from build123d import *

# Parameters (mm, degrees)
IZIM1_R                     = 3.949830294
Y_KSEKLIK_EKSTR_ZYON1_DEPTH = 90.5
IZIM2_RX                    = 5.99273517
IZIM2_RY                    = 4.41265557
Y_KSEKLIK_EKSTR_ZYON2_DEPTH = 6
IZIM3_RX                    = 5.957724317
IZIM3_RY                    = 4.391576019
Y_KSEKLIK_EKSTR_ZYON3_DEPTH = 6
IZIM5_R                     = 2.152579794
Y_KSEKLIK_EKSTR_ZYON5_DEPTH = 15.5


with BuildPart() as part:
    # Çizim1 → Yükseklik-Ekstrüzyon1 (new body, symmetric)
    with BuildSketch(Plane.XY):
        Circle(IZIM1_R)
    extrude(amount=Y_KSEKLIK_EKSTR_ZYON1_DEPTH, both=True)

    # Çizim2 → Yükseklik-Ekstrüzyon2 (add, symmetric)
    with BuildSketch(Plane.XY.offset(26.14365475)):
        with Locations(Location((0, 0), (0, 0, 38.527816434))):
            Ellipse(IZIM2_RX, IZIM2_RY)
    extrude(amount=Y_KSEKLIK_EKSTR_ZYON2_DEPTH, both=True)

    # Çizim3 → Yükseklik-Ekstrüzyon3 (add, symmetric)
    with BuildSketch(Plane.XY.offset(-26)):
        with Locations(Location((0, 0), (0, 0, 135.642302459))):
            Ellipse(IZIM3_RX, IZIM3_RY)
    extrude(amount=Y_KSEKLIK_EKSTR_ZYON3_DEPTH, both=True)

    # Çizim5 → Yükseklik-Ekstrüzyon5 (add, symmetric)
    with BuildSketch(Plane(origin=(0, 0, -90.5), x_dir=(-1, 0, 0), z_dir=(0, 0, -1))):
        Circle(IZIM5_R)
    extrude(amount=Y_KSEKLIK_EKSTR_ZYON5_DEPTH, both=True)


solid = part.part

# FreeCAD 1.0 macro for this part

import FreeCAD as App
import Part
import Sketcher

V = App.Vector
Q = App.Units.Quantity

doc = App.newDocument("Part")
params = doc.addObject("Spreadsheet::Sheet", "Params")
for row, (alias, value) in enumerate([
    ("pad1_length", "181 mm"),
    ("pad2_length", "12 mm"),
    ("pad3_length", "12 mm"),
    ("pad4_length", "31 mm"),
], start=1):
    params.set(f"A{row}", alias)
    params.set(f"B{row}", "=" + value)
    params.setAlias(f"B{row}", alias)

body = doc.addObject("PartDesign::Body", "Body")

# Sketch on XY plane
sketch1 = body.newObject("Sketcher::SketchObject", "Sketch")
sketch1.AttachmentSupport = (doc.getObject("XY_Plane"), [""])
sketch1.MapMode = "FlatFace"
sketch1.addGeometry(Part.Circle(V(0, 0, 0), V(0, 0, 1), 3.9), False)
sketch1.addConstraint(Sketcher.Constraint("Coincident", 0, 3, -1, 1))
sketch1.addConstraint(Sketcher.Constraint("Diameter", 0, Q("7.899661 mm")))
pad1 = body.newObject("PartDesign::Pad", "Pad")
pad1.Profile = sketch1
pad1.setExpression("Length", "Params.pad1_length")
pad1.Midplane = True

# Sketch on XY plane
sketch2 = body.newObject("Sketcher::SketchObject", "Sketch001")
sketch2.AttachmentSupport = (doc.getObject("XY_Plane"), [""])
sketch2.MapMode = "FlatFace"
sketch2.AttachmentOffset = App.Placement(V(0, 0, 26.143655), App.Rotation())
sketch2.addGeometry(Part.Ellipse(V(4.688152, 3.732842, 0), V(-2.748619, 3.452046, 0), V(0, 0, 0)), False)
sketch2.addConstraint(Sketcher.Constraint("Block", 0))
pad2 = body.newObject("PartDesign::Pad", "Pad001")
pad2.Profile = sketch2
pad2.setExpression("Length", "Params.pad2_length")
pad2.Midplane = True

# Sketch on XY plane
sketch3 = body.newObject("Sketcher::SketchObject", "Sketch002")
sketch3.AttachmentSupport = (doc.getObject("XY_Plane"), [""])
sketch3.MapMode = "FlatFace"
sketch3.AttachmentOffset = App.Placement(V(0, 0, -26), App.Rotation())
sketch3.addGeometry(Part.Ellipse(V(-4.259708, 4.165257, 0), V(-3.070307, -3.139929, 0), V(0, 0, 0)), False)
sketch3.addConstraint(Sketcher.Constraint("Block", 0))
pad3 = body.newObject("PartDesign::Pad", "Pad002")
pad3.Profile = sketch3
pad3.setExpression("Length", "Params.pad3_length")
pad3.Midplane = True

# Sketch on XY plane
sketch4 = body.newObject("Sketcher::SketchObject", "Sketch003")
sketch4.AttachmentSupport = (doc.getObject("XY_Plane"), [""])
sketch4.MapMode = "FlatFace"
sketch4.AttachmentOffset = App.Placement(V(0, 0, -90.5), App.Rotation())
sketch4.addGeometry(Part.Circle(V(0, 0, 0), V(0, 0, 1), 2.2), False)
sketch4.addConstraint(Sketcher.Constraint("Coincident", 0, 3, -1, 1))
sketch4.addConstraint(Sketcher.Constraint("Diameter", 0, Q("4.30516 mm")))
pad4 = body.newObject("PartDesign::Pad", "Pad003")
pad4.Profile = sketch4
pad4.setExpression("Length", "Params.pad4_length")
pad4.Midplane = True

doc.recompute()
